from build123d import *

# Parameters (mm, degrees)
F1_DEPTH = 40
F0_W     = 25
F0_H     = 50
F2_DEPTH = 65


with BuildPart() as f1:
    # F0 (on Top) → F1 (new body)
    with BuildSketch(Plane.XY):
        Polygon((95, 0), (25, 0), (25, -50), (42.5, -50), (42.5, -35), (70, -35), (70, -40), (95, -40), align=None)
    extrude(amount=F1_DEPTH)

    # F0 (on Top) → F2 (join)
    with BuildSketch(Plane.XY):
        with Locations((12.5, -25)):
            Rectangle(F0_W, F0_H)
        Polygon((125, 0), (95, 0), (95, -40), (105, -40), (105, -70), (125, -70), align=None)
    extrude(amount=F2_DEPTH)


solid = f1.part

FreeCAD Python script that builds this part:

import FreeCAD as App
import Part
import Sketcher
from FreeCAD import Vector
Q = App.Units.Quantity


def add_polygon(sketch, points):
    """Adds a closed chain of lines whose ends are joined by coincident constraints."""
    first, n = sketch.GeometryCount, len(points)
    for a, b in zip(points, points[1:] + points[:1]):
        sketch.addGeometry(Part.LineSegment(App.Vector(*a, 0), App.Vector(*b, 0)), False)
    for i in range(n):
        sketch.addConstraint(Sketcher.Constraint("Coincident", first + i, 2, first + (i + 1) % n, 1))

doc = App.newDocument("Part")
body = doc.addObject("PartDesign::Body", "Body")

sketch1 = doc.addObject("Sketcher::SketchObject", "Sketch")
body.addObject(sketch1)
sketch1.AttachmentSupport = (doc.XY_Plane, [""])
sketch1.MapMode = "FlatFace"
add_polygon(sketch1, [(95, 0), (25, 0), (25, -50), (42, -50), (42, -35), (70, -35), (70, -40), (95, -40)])
sketch1.addConstraint([
    Sketcher.Constraint("Horizontal", 0),
    Sketcher.Constraint("Vertical", 1),
    Sketcher.Constraint("Horizontal", 2),
    Sketcher.Constraint("Vertical", 3),
    Sketcher.Constraint("Horizontal", 4),
    Sketcher.Constraint("Vertical", 5),
    Sketcher.Constraint("Horizontal", 6),
    Sketcher.Constraint("Vertical", 7),
    Sketcher.Constraint("PointOnObject", 0, 2, -1),
    Sketcher.Constraint("DistanceX", 0, 2, 0, 1, Q("70 mm")),
    Sketcher.Constraint("DistanceX", 6, 1, 6, 2, Q("25 mm")),
    Sketcher.Constraint("DistanceY", 1, 2, 1, 1, Q("50 mm")),
    Sketcher.Constraint("DistanceY", 3, 1, 3, 2, Q("15 mm")),
    Sketcher.Constraint("DistanceY", 5, 2, 5, 1, Q("5 mm")),
    Sketcher.Constraint("DistanceX", 2, 1, 2, 2, Q("17.5 mm")),
    Sketcher.Constraint("DistanceX", -1, 1, 0, 2, Q("25 mm")),
])
pad1 = doc.addObject("PartDesign::Pad", "Pad")
body.addObject(pad1)
pad1.Profile = sketch1
pad1.Length = 40

sketch2 = doc.addObject("Sketcher::SketchObject", "Sketch001")
body.addObject(sketch2)
sketch2.AttachmentSupport = (doc.XY_Plane, [""])
sketch2.MapMode = "FlatFace"
add_polygon(sketch2, [(0, 0), (0, -50), (25, -50), (25, 0)])
add_polygon(sketch2, [(125, 0), (95, 0), (95, -40), (105, -40), (105, -70), (125, -70)])
sketch2.addConstraint([
    Sketcher.Constraint("Vertical", 0),
    Sketcher.Constraint("Horizontal", 1),
    Sketcher.Constraint("Vertical", 2),
    Sketcher.Constraint("Horizontal", 3),
    Sketcher.Constraint("Horizontal", 4),
    Sketcher.Constraint("Vertical", 5),
    Sketcher.Constraint("Horizontal", 6),
    Sketcher.Constraint("Vertical", 7),
    Sketcher.Constraint("Horizontal", 8),
    Sketcher.Constraint("Vertical", 9),
    Sketcher.Constraint("Coincident", 3, 2, -1, 1),
    Sketcher.Constraint("PointOnObject", 4, 2, -1),
    Sketcher.Constraint("Equal", 4, 7),
    Sketcher.Constraint("DistanceX", 1, 1, 1, 2, Q("25 mm")),
    Sketcher.Constraint("DistanceX", 4, 2, 4, 1, Q("30 mm")),
    Sketcher.Constraint("DistanceX", 6, 1, 6, 2, Q("10 mm")),
    Sketcher.Constraint("DistanceY", 0, 2, 0, 1, Q("50 mm")),
    Sketcher.Constraint("DistanceY", 5, 2, 5, 1, Q("40 mm")),
    Sketcher.Constraint("DistanceX", -1, 1, 4, 2, Q("95 mm")),
])
pad2 = doc.addObject("PartDesign::Pad", "Pad001")
body.addObject(pad2)
pad2.Profile = sketch2
pad2.Length = 65

doc.recompute()
